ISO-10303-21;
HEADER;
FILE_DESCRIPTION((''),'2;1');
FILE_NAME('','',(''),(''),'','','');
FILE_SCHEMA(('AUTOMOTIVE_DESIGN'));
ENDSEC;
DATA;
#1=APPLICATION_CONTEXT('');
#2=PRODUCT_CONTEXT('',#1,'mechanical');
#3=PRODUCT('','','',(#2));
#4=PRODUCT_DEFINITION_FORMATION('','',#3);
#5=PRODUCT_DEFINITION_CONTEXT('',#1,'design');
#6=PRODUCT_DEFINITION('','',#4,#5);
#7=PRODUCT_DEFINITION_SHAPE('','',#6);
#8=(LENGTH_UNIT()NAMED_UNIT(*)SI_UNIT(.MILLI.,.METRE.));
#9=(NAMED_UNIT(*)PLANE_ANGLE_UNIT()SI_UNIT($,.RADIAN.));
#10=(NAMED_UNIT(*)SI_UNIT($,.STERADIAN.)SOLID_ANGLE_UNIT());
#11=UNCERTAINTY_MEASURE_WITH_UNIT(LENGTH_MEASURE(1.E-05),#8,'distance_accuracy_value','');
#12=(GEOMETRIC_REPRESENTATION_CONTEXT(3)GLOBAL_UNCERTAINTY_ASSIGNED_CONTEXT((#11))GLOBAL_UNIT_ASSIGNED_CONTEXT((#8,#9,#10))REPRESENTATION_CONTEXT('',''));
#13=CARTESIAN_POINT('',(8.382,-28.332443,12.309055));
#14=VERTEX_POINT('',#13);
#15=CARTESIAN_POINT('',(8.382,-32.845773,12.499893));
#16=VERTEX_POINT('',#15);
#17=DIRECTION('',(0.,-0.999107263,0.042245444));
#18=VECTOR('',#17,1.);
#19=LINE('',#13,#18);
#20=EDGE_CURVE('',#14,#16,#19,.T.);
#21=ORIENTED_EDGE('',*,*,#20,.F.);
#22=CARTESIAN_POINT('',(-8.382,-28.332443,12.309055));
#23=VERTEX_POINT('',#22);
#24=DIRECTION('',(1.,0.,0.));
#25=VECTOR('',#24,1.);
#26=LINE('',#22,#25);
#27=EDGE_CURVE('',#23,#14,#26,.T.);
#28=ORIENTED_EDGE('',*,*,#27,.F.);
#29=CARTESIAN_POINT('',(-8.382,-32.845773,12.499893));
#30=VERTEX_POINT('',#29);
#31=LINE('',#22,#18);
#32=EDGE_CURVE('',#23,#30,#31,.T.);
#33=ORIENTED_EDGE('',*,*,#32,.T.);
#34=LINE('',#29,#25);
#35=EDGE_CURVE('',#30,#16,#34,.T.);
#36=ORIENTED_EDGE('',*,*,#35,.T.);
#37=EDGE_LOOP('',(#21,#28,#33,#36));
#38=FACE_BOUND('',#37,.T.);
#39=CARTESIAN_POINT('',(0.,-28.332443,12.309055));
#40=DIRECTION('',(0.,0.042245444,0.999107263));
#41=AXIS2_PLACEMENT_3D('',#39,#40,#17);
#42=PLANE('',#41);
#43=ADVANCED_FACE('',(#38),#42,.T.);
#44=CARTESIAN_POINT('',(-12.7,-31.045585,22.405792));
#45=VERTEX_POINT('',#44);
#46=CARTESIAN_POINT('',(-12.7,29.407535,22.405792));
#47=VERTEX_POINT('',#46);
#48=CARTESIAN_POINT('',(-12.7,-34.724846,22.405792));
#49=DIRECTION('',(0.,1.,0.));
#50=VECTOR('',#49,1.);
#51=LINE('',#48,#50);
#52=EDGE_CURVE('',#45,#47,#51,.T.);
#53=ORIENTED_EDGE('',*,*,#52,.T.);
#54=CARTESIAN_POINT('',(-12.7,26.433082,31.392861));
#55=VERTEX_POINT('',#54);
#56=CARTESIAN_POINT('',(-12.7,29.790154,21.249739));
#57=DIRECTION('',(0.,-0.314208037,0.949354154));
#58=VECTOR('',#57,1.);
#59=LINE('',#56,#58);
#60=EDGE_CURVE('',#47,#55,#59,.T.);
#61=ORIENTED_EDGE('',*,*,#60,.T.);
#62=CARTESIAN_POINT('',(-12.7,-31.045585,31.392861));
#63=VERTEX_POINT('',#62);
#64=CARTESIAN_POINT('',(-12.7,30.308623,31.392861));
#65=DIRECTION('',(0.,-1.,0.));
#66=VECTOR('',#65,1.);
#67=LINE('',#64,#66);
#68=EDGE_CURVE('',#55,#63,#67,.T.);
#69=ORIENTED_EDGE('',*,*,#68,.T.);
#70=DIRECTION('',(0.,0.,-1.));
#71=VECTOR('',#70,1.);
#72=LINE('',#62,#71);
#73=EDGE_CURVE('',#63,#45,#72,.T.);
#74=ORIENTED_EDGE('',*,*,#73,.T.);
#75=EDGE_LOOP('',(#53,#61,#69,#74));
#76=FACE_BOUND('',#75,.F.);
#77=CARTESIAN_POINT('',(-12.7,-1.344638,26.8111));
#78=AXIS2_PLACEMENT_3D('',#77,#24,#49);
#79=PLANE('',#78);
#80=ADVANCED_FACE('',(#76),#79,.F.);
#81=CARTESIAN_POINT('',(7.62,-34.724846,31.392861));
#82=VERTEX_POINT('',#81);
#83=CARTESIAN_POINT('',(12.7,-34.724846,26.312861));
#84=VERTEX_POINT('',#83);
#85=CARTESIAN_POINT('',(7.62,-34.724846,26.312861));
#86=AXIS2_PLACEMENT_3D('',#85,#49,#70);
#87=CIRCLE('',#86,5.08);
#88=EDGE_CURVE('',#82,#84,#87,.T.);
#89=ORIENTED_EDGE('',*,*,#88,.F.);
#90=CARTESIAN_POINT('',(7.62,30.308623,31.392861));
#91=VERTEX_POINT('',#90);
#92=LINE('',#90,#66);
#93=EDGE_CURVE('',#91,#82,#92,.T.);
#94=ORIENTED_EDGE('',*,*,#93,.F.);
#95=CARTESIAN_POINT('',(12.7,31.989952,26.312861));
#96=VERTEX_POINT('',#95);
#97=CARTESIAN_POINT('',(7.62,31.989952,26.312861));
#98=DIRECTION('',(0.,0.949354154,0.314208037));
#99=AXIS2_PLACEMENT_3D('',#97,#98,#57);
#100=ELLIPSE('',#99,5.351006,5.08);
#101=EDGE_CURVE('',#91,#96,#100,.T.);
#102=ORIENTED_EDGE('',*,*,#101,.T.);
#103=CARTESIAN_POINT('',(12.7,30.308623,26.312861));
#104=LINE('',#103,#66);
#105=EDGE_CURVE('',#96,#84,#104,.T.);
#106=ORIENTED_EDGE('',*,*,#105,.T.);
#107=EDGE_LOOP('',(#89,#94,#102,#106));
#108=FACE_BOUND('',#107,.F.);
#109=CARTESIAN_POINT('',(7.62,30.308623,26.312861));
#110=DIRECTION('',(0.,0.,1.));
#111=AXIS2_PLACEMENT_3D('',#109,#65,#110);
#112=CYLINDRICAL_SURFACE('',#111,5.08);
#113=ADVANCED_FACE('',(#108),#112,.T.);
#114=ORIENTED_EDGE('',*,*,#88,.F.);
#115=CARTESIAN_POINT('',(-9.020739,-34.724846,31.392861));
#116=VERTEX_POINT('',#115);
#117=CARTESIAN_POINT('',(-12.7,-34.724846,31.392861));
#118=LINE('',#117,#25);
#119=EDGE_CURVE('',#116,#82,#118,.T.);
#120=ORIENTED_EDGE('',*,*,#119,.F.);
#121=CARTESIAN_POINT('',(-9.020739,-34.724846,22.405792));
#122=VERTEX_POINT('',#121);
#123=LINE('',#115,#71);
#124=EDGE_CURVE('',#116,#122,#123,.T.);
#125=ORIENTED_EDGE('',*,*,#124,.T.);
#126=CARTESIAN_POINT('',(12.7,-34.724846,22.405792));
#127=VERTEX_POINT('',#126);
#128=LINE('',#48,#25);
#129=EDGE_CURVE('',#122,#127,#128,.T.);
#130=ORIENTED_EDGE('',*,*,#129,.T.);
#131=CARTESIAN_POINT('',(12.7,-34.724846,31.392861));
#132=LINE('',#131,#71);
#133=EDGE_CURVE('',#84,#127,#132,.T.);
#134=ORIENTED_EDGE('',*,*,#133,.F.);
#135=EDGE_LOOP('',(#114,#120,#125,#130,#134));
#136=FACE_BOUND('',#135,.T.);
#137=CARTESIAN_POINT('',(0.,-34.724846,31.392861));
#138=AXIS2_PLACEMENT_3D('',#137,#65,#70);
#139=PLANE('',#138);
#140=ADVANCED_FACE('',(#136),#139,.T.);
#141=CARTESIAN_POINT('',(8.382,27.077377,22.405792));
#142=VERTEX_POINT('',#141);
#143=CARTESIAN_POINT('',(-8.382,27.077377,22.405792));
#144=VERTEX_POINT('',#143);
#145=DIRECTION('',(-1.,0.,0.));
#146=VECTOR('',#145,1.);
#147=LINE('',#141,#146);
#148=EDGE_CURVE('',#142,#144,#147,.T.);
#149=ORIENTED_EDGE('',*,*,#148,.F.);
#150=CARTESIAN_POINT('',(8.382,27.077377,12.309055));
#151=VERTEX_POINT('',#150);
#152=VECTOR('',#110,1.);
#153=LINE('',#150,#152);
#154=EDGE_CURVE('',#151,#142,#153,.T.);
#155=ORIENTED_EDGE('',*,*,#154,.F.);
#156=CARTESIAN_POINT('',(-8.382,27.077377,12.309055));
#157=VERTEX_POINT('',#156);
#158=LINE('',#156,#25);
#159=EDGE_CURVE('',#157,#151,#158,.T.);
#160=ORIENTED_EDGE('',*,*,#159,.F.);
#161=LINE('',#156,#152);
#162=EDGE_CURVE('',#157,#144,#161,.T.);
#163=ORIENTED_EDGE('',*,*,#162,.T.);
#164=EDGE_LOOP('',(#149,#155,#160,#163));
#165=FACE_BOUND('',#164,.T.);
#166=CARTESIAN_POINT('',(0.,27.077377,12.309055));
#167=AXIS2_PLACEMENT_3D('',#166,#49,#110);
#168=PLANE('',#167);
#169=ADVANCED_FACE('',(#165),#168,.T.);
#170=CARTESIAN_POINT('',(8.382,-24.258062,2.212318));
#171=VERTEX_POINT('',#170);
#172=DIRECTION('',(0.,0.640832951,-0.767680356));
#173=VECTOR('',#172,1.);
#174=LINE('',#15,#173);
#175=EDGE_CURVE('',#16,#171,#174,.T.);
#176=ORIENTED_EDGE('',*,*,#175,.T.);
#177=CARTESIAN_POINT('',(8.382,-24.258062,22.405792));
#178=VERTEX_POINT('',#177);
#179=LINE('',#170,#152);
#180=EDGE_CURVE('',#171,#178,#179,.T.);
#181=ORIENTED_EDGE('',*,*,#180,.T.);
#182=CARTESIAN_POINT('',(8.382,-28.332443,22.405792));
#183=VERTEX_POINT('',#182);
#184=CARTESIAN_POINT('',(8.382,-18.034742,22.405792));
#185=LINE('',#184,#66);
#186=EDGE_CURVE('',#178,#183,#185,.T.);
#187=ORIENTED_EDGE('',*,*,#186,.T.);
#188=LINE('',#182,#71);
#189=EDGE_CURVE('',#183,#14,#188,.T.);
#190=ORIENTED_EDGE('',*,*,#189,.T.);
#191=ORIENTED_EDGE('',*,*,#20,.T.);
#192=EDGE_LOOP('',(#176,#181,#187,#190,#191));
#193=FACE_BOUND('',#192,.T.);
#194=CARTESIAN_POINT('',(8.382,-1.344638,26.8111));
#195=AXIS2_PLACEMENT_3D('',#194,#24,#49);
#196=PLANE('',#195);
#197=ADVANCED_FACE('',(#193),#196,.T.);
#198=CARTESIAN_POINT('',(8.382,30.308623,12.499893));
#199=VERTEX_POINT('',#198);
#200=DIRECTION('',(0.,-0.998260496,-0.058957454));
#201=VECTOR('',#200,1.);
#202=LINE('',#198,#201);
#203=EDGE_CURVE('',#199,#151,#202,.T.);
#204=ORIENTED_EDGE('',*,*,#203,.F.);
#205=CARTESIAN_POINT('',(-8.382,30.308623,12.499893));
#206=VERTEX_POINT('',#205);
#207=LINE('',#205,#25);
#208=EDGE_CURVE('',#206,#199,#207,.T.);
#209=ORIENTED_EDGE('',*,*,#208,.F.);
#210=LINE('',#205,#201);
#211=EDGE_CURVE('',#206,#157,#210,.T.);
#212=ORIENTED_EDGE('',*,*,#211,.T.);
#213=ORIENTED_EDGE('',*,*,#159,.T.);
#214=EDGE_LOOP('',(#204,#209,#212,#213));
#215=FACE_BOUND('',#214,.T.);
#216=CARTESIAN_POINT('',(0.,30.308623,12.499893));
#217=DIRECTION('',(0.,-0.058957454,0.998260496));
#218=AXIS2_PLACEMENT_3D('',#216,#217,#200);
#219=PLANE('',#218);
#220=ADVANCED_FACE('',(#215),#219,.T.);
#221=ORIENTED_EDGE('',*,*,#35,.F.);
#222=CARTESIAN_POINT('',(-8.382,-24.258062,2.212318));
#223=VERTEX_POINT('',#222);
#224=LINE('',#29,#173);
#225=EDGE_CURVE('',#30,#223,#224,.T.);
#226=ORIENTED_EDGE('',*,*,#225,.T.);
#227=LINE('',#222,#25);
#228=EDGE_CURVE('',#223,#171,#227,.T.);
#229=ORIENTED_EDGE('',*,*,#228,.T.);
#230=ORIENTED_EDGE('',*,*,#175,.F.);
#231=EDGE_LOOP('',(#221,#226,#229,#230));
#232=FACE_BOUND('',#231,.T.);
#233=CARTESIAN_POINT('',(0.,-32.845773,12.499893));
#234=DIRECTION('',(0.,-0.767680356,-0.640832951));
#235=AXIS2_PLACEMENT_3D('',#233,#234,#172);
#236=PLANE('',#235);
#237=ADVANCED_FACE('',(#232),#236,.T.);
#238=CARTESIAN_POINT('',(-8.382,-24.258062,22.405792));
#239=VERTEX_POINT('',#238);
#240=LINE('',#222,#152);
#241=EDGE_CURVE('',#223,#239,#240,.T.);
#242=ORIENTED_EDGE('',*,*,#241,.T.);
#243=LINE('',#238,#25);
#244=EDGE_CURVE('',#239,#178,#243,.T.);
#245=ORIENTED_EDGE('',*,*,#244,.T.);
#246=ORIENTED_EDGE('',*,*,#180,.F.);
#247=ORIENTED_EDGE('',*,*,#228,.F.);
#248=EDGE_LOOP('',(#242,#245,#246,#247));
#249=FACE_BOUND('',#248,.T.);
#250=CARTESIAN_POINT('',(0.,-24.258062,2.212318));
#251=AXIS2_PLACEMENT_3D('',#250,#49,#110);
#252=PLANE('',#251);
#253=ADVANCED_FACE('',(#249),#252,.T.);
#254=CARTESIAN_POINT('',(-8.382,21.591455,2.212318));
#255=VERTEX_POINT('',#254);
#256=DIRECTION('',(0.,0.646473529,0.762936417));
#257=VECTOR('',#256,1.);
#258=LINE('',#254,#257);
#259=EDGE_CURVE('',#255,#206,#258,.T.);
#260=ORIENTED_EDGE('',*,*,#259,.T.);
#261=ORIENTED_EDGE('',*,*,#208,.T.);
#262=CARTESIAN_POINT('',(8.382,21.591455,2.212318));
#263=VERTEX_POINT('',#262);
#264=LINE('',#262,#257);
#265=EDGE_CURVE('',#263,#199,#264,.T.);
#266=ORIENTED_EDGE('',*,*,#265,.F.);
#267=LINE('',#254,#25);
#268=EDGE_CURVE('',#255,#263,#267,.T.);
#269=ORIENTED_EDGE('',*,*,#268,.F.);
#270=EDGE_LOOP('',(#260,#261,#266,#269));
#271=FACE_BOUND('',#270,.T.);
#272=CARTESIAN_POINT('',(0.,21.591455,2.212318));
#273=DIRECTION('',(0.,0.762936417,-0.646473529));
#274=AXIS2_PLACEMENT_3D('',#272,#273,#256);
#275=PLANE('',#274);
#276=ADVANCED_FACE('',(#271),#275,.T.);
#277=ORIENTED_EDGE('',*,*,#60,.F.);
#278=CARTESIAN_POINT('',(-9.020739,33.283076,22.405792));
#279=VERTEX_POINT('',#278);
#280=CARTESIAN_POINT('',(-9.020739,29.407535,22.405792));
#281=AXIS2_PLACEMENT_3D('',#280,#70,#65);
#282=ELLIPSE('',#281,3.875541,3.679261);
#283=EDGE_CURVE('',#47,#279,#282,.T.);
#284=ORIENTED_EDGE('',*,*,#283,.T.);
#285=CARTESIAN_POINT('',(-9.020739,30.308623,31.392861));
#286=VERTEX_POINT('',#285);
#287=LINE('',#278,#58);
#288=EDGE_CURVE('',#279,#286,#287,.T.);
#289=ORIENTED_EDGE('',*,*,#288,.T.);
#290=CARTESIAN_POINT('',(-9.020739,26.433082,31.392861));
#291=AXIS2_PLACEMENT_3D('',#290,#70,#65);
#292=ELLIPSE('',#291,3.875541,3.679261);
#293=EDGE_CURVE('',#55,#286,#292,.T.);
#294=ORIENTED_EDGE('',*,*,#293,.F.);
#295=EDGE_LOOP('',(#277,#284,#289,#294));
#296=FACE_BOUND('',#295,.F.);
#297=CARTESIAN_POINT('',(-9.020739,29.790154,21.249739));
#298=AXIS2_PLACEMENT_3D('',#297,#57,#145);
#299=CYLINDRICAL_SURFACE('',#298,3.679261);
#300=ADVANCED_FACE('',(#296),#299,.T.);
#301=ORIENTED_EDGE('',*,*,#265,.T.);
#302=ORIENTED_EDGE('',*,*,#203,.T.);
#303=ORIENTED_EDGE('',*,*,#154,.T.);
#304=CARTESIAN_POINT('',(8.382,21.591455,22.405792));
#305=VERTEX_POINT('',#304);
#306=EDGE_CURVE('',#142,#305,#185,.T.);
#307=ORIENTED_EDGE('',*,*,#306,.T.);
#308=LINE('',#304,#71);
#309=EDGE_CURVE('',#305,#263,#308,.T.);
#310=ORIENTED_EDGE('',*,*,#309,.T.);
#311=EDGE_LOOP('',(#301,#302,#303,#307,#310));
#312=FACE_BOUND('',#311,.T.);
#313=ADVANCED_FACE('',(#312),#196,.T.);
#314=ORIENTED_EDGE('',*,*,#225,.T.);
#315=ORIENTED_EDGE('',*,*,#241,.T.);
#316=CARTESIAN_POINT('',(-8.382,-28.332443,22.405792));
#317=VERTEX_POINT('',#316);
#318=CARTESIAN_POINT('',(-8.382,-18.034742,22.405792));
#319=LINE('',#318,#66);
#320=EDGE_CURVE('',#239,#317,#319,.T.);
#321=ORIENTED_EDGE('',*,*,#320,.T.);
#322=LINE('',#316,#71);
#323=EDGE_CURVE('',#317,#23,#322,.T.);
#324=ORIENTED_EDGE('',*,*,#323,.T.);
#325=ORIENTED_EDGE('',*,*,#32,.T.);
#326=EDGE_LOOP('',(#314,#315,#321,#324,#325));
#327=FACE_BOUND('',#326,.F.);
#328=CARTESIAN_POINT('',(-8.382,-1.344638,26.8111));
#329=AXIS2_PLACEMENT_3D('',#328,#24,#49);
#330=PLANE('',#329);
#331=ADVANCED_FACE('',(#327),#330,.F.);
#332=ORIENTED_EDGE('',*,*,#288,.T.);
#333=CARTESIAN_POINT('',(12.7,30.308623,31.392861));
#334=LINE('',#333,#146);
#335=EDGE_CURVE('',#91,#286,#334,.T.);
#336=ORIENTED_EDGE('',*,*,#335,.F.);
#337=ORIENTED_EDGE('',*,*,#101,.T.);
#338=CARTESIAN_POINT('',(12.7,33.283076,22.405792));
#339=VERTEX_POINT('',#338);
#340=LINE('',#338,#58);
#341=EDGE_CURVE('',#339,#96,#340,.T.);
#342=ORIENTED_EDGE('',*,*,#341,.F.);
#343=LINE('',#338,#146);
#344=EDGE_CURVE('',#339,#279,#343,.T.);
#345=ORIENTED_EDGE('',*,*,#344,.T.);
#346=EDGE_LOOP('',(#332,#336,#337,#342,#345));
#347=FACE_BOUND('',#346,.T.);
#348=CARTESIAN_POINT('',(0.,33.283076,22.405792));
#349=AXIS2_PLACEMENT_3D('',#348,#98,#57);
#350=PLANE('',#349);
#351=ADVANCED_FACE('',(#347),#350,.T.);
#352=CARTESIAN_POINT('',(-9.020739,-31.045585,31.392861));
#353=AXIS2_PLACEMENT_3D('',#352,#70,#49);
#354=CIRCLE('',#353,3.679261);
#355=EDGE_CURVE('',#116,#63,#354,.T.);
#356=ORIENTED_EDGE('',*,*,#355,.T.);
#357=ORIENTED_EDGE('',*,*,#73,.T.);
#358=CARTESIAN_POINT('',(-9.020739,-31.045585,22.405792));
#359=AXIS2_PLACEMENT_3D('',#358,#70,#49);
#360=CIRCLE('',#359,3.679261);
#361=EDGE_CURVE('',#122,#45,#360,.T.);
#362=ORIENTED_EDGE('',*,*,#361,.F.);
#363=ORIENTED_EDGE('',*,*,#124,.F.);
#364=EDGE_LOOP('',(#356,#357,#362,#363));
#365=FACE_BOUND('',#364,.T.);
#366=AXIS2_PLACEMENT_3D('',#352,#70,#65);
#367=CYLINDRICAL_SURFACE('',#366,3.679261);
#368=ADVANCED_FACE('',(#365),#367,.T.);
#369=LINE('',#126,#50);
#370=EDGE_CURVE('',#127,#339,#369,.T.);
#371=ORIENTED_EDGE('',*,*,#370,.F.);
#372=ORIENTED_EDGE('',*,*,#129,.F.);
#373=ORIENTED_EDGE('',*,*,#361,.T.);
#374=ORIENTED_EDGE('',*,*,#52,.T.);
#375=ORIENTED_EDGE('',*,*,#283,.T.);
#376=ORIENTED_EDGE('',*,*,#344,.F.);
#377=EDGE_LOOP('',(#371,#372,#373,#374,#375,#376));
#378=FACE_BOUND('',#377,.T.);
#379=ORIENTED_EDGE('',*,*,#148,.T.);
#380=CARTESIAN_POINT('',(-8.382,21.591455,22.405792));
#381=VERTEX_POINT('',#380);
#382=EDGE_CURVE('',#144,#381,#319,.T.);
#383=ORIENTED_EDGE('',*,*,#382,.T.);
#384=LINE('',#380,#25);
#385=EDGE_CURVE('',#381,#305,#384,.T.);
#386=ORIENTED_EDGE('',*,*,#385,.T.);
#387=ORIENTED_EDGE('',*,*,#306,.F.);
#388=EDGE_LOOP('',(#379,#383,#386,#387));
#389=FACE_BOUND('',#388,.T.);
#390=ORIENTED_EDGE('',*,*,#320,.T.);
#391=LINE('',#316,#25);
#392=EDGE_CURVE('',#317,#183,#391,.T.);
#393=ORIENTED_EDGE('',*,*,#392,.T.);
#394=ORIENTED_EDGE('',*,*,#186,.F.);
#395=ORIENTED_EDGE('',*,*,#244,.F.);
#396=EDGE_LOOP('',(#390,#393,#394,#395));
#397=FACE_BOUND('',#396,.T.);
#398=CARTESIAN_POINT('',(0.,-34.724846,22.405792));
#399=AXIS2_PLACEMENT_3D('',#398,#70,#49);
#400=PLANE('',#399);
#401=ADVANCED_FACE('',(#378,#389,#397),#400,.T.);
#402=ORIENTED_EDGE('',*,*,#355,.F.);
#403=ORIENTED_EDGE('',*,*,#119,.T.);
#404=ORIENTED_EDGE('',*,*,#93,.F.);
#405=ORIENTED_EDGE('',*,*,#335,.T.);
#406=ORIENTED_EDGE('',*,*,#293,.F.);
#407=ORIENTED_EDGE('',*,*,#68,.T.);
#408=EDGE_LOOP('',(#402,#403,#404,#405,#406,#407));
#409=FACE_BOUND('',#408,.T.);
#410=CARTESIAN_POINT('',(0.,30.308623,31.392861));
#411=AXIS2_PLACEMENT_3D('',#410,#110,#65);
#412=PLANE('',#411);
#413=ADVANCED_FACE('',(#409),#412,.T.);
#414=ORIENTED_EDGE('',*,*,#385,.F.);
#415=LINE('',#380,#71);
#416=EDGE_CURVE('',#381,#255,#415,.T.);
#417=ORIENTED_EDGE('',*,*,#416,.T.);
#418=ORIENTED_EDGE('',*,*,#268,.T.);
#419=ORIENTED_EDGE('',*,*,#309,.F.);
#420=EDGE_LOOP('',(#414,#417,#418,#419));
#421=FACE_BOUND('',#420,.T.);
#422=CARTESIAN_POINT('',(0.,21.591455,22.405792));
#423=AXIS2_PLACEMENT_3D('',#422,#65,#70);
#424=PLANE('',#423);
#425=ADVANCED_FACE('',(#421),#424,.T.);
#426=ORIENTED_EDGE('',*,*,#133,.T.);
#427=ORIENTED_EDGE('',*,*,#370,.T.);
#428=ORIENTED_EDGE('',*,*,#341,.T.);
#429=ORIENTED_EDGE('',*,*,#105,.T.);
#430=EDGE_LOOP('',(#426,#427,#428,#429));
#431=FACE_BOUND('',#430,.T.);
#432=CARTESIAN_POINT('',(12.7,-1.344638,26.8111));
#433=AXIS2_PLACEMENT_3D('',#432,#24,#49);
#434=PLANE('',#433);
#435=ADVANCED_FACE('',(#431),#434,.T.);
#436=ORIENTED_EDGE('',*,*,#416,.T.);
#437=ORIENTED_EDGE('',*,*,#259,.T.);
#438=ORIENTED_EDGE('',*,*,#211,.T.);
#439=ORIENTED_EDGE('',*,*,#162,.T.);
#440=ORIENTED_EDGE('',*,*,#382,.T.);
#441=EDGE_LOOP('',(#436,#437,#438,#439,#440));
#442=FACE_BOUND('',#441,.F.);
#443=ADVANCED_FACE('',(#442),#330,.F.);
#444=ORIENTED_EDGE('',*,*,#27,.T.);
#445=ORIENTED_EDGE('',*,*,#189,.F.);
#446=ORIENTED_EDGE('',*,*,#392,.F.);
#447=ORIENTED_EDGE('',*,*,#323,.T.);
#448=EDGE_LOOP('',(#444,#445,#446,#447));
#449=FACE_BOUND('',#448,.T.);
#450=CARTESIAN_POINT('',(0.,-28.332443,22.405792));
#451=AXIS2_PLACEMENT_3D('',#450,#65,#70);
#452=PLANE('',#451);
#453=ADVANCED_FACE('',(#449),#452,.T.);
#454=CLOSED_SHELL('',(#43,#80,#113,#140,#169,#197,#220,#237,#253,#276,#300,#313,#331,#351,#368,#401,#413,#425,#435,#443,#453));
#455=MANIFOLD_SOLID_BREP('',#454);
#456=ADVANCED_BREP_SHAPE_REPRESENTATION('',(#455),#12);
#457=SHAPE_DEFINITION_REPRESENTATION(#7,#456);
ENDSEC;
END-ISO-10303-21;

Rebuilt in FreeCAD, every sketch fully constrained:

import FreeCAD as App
import Part
import Sketcher

V = App.Vector
Q = App.Units.Quantity


def edges_at(feature, points):
    """Names of the edges that pass closest to the given points."""
    edges = feature.Shape.Edges
    near = lambda p: min(range(len(edges)), key=lambda i: edges[i].distToShape(Part.Vertex(*p))[0])
    return sorted({f"Edge{near(p) + 1}" for p in points})


def add_polygon(sketch, points):
    """Adds a closed chain of lines whose ends are joined by coincident constraints."""
    first, n = sketch.GeometryCount, len(points)
    for a, b in zip(points, points[1:] + points[:1]):
        sketch.addGeometry(Part.LineSegment(App.Vector(*a, 0), App.Vector(*b, 0)), False)
    for i in range(n):
        sketch.addConstraint(Sketcher.Constraint("Coincident", first + i, 2, first + (i + 1) % n, 1))

doc = App.newDocument("Part")
body = doc.addObject("PartDesign::Body", "Body")

sketch1 = body.newObject("Sketcher::SketchObject", "Sketch")
sketch1.AttachmentSupport = (doc.getObject("YZ_Plane"), [""])
sketch1.MapMode = "FlatFace"
add_polygon(sketch1, [(30, 31), (-35, 31), (-35, 22), (33, 22)])
sketch1.addConstraint([
    Sketcher.Constraint("Horizontal", 0),
    Sketcher.Constraint("Vertical", 1),
    Sketcher.Constraint("Horizontal", 2),
    Sketcher.Constraint("DistanceX", 0, 2, 0, 1, 65.033469),
    Sketcher.Constraint("DistanceY", 1, 2, 1, 1, 8.987069),
    Sketcher.Constraint("Distance", 3, 9.466508),
    Sketcher.Constraint("DistanceY", -1, 1, 0, 2, 31.392861),
    Sketcher.Constraint("DistanceX", 0, 2, -1, 1, 34.724846),
])
pad1 = body.newObject("PartDesign::Pad", "Pad")
pad1.Profile = sketch1
pad1.Length = Q("1 in")
pad1.Midplane = True

sketch2 = body.newObject("Sketcher::SketchObject", "Sketch001")
sketch2.AttachmentSupport = (doc.getObject("YZ_Plane"), [""])
sketch2.MapMode = "FlatFace"
add_polygon(sketch2, [(30.3, 31.4), (-34.7, 31.4), (-34.7, 22.4), (-28.3, 22.4), (-28.3, 12.3), (-32.8, 12.5), (-24.3, 2.2), (-24.3, 22.4), (21.6, 22.4), (21.6, 2.2), (30.3, 12.5), (27.1, 12.3), (27.1, 22.4), (33.3, 22.4)])
sketch2.addConstraint([
    Sketcher.Constraint("Horizontal", 0),
    Sketcher.Constraint("Vertical", 1),
    Sketcher.Constraint("Horizontal", 2),
    Sketcher.Constraint("Vertical", 3),
    Sketcher.Constraint("Vertical", 6),
    Sketcher.Constraint("Horizontal", 7),
    Sketcher.Constraint("Vertical", 8),
    Sketcher.Constraint("Vertical", 11),
    Sketcher.Constraint("Horizontal", 12),
    Sketcher.Constraint("Horizontal", 2, 2, 6, 2),
    Sketcher.Constraint("Horizontal", 5, 2, 8, 2),
    Sketcher.Constraint("Horizontal", 4, 2, 9, 2),
    Sketcher.Constraint("Horizontal", 3, 2, 10, 2),
    Sketcher.Constraint("Horizontal", 7, 2, 11, 2),
    Sketcher.Constraint("Vertical", 9, 2, 13, 2),
    Sketcher.Constraint("DistanceX", 12, 1, 12, 2, 6.205699),
    Sketcher.Constraint("DistanceX", 7, 2, 12, 2, Q("0.4603 in")),
    Sketcher.Constraint("DistanceX", 0, 2, 0, 1, 65.033469),
    Sketcher.Constraint("DistanceY", 1, 2, 1, 1, 8.987069),
    Sketcher.Constraint("DistanceY", 4, 2, 1, 2, 9.905899),
    Sketcher.Constraint("Distance", 13, 9.466508),
    Sketcher.Constraint("DistanceX", 2, 1, 2, 2, 6.392403),
    Sketcher.Constraint("DistanceX", 7, 1, 7, 2, 45.849517),
    Sketcher.Constraint("DistanceY", 3, 2, 3, 1, 10.096737),
    Sketcher.Constraint("DistanceY", 6, 1, 6, 2, 20.193474),
    Sketcher.Constraint("DistanceY", -1, 1, 0, 2, 31.392861),
    Sketcher.Constraint("DistanceX", 5, 2, -1, 1, 24.258062),
    Sketcher.Constraint("DistanceX", 4, 2, 3, 2, 4.51333),
])
pad2 = body.newObject("PartDesign::Pad", "Pad001")
pad2.Profile = sketch2
pad2.Length = Q("0.66 in")
pad2.Midplane = True
doc.recompute()

fillet = body.newObject("PartDesign::Fillet", "Fillet")
fillet.Base = (pad2, edges_at(pad2, [(-12.7, -34.725, 26.899), (-12.7, 31.796, 26.899)]))
fillet.Radius = 3.679261
doc.recompute()

fillet2 = body.newObject("PartDesign::Fillet", "Fillet001")
fillet2.Base = (fillet, edges_at(fillet, [(12.7, -2.208, 31.393)]))
fillet2.Radius = Q("0.2 in")

doc.recompute()
